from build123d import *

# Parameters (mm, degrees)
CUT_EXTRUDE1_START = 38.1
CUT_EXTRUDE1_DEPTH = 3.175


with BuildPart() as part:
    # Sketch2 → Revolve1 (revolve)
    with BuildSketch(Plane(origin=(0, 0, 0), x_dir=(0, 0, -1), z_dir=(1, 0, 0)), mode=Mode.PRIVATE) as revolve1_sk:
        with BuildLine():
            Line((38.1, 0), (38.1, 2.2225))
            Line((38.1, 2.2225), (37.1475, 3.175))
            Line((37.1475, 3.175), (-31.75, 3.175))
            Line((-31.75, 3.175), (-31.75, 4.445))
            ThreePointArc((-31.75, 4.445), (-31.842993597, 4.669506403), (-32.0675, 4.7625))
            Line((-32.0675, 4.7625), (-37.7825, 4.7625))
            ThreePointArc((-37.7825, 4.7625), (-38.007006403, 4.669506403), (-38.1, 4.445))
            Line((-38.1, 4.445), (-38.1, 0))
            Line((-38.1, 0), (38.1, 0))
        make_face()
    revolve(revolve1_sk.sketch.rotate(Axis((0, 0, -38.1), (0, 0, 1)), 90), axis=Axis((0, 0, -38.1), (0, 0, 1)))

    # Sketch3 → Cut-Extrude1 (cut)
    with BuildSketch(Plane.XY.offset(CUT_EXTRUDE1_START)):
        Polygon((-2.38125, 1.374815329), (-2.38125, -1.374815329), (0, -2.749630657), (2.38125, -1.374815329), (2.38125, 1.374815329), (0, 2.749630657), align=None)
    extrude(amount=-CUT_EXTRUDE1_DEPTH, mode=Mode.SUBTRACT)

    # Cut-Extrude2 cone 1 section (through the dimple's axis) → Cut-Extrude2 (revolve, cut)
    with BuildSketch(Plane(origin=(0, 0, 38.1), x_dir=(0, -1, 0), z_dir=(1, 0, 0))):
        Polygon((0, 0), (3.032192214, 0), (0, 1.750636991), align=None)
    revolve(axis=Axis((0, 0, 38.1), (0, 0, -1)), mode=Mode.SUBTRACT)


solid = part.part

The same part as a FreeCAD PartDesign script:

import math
import FreeCAD as App
import Part
import Sketcher
from FreeCAD import Vector
Q = App.Units.Quantity

doc = App.newDocument("Part")
params = doc.addObject("Spreadsheet::Sheet", "Params")
for row, (alias, value) in enumerate([
    ("sketch1_height", "3 in"),
    ("sketch1_width", "0.05 in"),
    ("sketch1_width2", "0.175 in"),
    ("sketch1_height2", "0.225 in"),
    ("revolution_angle", "360 deg"),
    ("pocket1_length", "0.125 in"),
    ("groove_angle", "360 deg"),
], start=1):
    params.set(f"A{row}", alias)
    params.set(f"B{row}", "=" + value)
    params.setAlias(f"B{row}", alias)

body = doc.addObject("PartDesign::Body", "Body")

sketch1 = doc.addObject("Sketcher::SketchObject", "Sketch")
body.addObject(sketch1)
sketch1.AttachmentSupport = (doc.YZ_Plane, [""])
sketch1.MapMode = "FlatFace"
sketch1.addGeometry([
    Part.LineSegment(Vector(0, -38.1, 0), Vector(2.2225, -38.1, 0)),
    Part.LineSegment(Vector(2.2225, -38.1, 0), Vector(3.175, -37.1475, 0)),
    Part.LineSegment(Vector(3.175, -37.1475, 0), Vector(3.175, 31.75, 0)),
    Part.LineSegment(Vector(3.175, 31.75, 0), Vector(4.445, 31.75, 0)),
    Part.ArcOfCircle(Part.Circle(Vector(4.445, 32.0675, 0), Vector(0, 0, 1), 0.3175), math.radians(-90), math.radians(0)),
    Part.LineSegment(Vector(4.7625, 32.0675, 0), Vector(4.7625, 37.7825, 0)),
    Part.ArcOfCircle(Part.Circle(Vector(4.445, 37.7825, 0), Vector(0, 0, 1), 0.3175), math.radians(0), math.radians(90)),
    Part.LineSegment(Vector(4.445, 38.1, 0), Vector(0, 38.1, 0)),
    Part.LineSegment(Vector(0, 38.1, 0), Vector(0, -38.1, 0)),
], False)
sketch1.addConstraint([
    Sketcher.Constraint("Coincident", 0, 2, 1, 1),
    Sketcher.Constraint("Coincident", 1, 2, 2, 1),
    Sketcher.Constraint("Coincident", 2, 2, 3, 1),
    Sketcher.Constraint("Tangent", 3, 2, 4, 1),
    Sketcher.Constraint("Tangent", 4, 2, 5, 1),
    Sketcher.Constraint("Tangent", 5, 2, 6, 1),
    Sketcher.Constraint("Tangent", 6, 2, 7, 1),
    Sketcher.Constraint("Coincident", 7, 2, 8, 1),
    Sketcher.Constraint("Coincident", 8, 2, 0, 1),
    Sketcher.Constraint("Horizontal", 0),
    Sketcher.Constraint("Vertical", 2),
    Sketcher.Constraint("Horizontal", 3),
    Sketcher.Constraint("Vertical", 5),
    Sketcher.Constraint("Horizontal", 7),
    Sketcher.Constraint("Vertical", 8),
    Sketcher.Constraint("Equal", 4, 6),
    Sketcher.Constraint("Symmetric", 7, 2, 8, 2, -1, 1),
    Sketcher.Constraint("DistanceY", 8, 2, 8, 1, Q("3 in")),
    Sketcher.Constraint("Angle", 1, Q("45 deg")),
    Sketcher.Constraint("DistanceX", 3, 1, 3, 2, Q("0.05 in")),
    Sketcher.Constraint("Radius", 4, Q("0.0125 in")),
    Sketcher.Constraint("DistanceX", 7, 2, 7, 1, Q("0.175 in")),
    Sketcher.Constraint("DistanceY", 5, 1, 5, 2, Q("0.225 in")),
    Sketcher.Constraint("DistanceY", 1, 2, 6, 3, Q("2.95 in")),
])
sketch1.setExpression("Constraints[17]", "Params.sketch1_height")
sketch1.setExpression("Constraints[19]", "Params.sketch1_width")
sketch1.setExpression("Constraints[21]", "Params.sketch1_width2")
sketch1.setExpression("Constraints[22]", "Params.sketch1_height2")
revolution = doc.addObject("PartDesign::Revolution", "Revolution")
body.addObject(revolution)
revolution.Profile = sketch1
revolution.ReferenceAxis = (sketch1, ["V_Axis"])
revolution.setExpression("Angle", "Params.revolution_angle")

sketch2 = doc.addObject("Sketcher::SketchObject", "Sketch001")
body.addObject(sketch2)
sketch2.AttachmentSupport = (doc.XY_Plane, [""])
sketch2.MapMode = "FlatFace"
sketch2.AttachmentOffset = App.Placement(Vector(0, 0, 1.5 * 25.4), App.Rotation())
sketch2.addGeometry([
    Part.LineSegment(Vector(-2.38125, 1.374815, 0), Vector(-2.38125, -1.374815, 0)),
    Part.LineSegment(Vector(-2.38125, -1.374815, 0), Vector(0, -2.749631, 0)),
    Part.LineSegment(Vector(0, -2.749631, 0), Vector(2.38125, -1.374815, 0)),
    Part.LineSegment(Vector(2.38125, -1.374815, 0), Vector(2.38125, 1.374815, 0)),
    Part.LineSegment(Vector(2.38125, 1.374815, 0), Vector(0, 2.749631, 0)),
    Part.LineSegment(Vector(0, 2.749631, 0), Vector(-2.38125, 1.374815, 0)),
], False)
sketch2.addConstraint([
    Sketcher.Constraint("Coincident", 0, 2, 1, 1),
    Sketcher.Constraint("Coincident", 1, 2, 2, 1),
    Sketcher.Constraint("Coincident", 2, 2, 3, 1),
    Sketcher.Constraint("Coincident", 3, 2, 4, 1),
    Sketcher.Constraint("Coincident", 4, 2, 5, 1),
    Sketcher.Constraint("Coincident", 5, 2, 0, 1),
    Sketcher.Constraint("Vertical", 0),
    Sketcher.Constraint("Vertical", 3),
    Sketcher.Constraint("Symmetric", 0, 2, 3, 2, -1, 1),
    Sketcher.Constraint("Symmetric", 1, 2, 4, 2, -1, 1),
    Sketcher.Constraint("PointOnObject", 1, 2, -2),
    Sketcher.Constraint("Parallel", 2, 5),
    Sketcher.Constraint("Horizontal", 0, 2, 2, 2),
    Sketcher.Constraint("Angle", 1, Q("-30 deg")),
    Sketcher.Constraint("DistanceX", 0, 2, -1, 1, Q("0.09375 in")),
    Sketcher.Constraint("DistanceY", 0, 2, 0, 1, Q("2.749631 mm")),
])
pocket1 = doc.addObject("PartDesign::Pocket", "Pocket")
body.addObject(pocket1)
pocket1.Profile = sketch2
pocket1.setExpression("Length", "Params.pocket1_length")

sketch3 = doc.addObject("Sketcher::SketchObject", "Sketch002")
body.addObject(sketch3)
sketch3.AttachmentSupport = (doc.YZ_Plane, [""])
sketch3.MapMode = "FlatFace"
sketch3.addGeometry([
    Part.LineSegment(Vector(0, 38.1, 0), Vector(-3.032192, 38.1, 0)),
    Part.LineSegment(Vector(-3.032192, 38.1, 0), Vector(0, 36.349363, 0)),
    Part.LineSegment(Vector(0, 36.349363, 0), Vector(0, 38.1, 0)),
], False)
sketch3.addConstraint([
    Sketcher.Constraint("Coincident", 0, 2, 1, 1),
    Sketcher.Constraint("Coincident", 1, 2, 2, 1),
    Sketcher.Constraint("Coincident", 2, 2, 0, 1),
    Sketcher.Constraint("Horizontal", 0),
    Sketcher.Constraint("Vertical", 2),
    Sketcher.Constraint("PointOnObject", 1, 2, -2),
    Sketcher.Constraint("Angle", 1, Q("-30 deg")),
    Sketcher.Constraint("DistanceY", -1, 1, 0, 2, Q("1.5 in")),
    Sketcher.Constraint("DistanceX", 0, 2, 0, 1, Q("3.032192 mm")),
])
groove = doc.addObject("PartDesign::Groove", "Groove")
body.addObject(groove)
groove.Profile = sketch3
groove.ReferenceAxis = (sketch3, ["V_Axis"])
groove.setExpression("Angle", "Params.groove_angle")

doc.recompute()
